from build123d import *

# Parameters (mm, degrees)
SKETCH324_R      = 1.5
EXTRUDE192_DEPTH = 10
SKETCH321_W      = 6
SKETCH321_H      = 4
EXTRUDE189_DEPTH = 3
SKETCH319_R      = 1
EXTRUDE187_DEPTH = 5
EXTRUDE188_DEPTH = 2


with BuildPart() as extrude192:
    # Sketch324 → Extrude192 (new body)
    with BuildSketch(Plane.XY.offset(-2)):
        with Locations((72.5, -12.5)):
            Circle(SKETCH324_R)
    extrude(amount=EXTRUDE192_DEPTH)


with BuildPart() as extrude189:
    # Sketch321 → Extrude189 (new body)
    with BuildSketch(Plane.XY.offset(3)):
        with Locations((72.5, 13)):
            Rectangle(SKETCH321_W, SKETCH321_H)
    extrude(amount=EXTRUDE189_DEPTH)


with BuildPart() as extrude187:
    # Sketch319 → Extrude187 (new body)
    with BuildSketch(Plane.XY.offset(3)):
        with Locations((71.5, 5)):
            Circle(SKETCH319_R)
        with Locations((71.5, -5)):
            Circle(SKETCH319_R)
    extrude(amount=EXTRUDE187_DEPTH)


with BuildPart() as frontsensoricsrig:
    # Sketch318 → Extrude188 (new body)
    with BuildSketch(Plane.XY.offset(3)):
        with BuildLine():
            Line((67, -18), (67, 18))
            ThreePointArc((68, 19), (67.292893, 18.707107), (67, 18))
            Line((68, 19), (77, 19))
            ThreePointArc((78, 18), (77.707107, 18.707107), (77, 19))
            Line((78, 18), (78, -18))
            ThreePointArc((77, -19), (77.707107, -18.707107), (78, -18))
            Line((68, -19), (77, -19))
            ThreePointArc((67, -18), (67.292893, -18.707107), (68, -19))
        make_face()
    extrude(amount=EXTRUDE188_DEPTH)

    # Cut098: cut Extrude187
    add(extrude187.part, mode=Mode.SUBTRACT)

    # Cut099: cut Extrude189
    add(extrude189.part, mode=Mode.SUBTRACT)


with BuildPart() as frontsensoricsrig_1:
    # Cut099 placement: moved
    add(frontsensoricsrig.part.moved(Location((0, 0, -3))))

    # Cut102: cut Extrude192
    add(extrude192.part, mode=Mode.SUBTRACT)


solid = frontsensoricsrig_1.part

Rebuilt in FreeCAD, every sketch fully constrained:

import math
import FreeCAD as App
import Part
import Sketcher

V = App.Vector
Q = App.Units.Quantity


def add_polygon(sketch, points):
    """Adds a closed chain of lines whose ends are joined by coincident constraints."""
    first, n = sketch.GeometryCount, len(points)
    for a, b in zip(points, points[1:] + points[:1]):
        sketch.addGeometry(Part.LineSegment(App.Vector(*a, 0), App.Vector(*b, 0)), False)
    for i in range(n):
        sketch.addConstraint(Sketcher.Constraint("Coincident", first + i, 2, first + (i + 1) % n, 1))

doc = App.newDocument("Part")
body = doc.addObject("PartDesign::Body", "Body")

sketch1 = body.newObject("Sketcher::SketchObject", "Sketch")
sketch1.AttachmentSupport = (doc.getObject("XY_Plane"), [""])
sketch1.MapMode = "FlatFace"
sketch1.AttachmentOffset = App.Placement(V(0, 0, -2), App.Rotation())
sketch1.addGeometry(Part.Circle(V(72.5, -12.5, 0), V(0, 0, 1), 1.5), False)
sketch1.addConstraint(Sketcher.Constraint("Diameter", 0, Q("3 mm")))
sketch1.addConstraint(Sketcher.Constraint("DistanceX", -1, 1, 0, 3, Q("72.5 mm")))
sketch1.addConstraint(Sketcher.Constraint("DistanceY", 0, 3, -1, 1, Q("12.5 mm")))
pad1 = body.newObject("PartDesign::Pad", "Pad")
pad1.Profile = sketch1
pad1.Length = 10
body2 = doc.addObject("PartDesign::Body", "Body001")

sketch2 = body2.newObject("Sketcher::SketchObject", "Sketch001")
sketch2.AttachmentSupport = (doc.getObject("XY_Plane001"), [""])
sketch2.MapMode = "FlatFace"
sketch2.AttachmentOffset = App.Placement(V(0, 0, 3), App.Rotation())
add_polygon(sketch2, [(69.5, 15), (69.5, 11), (75.5, 11), (75.5, 15)])
sketch2.addConstraint(Sketcher.Constraint("Vertical", 0))
sketch2.addConstraint(Sketcher.Constraint("Horizontal", 1))
sketch2.addConstraint(Sketcher.Constraint("Vertical", 2))
sketch2.addConstraint(Sketcher.Constraint("Horizontal", 3))
sketch2.addConstraint(Sketcher.Constraint("DistanceX", 1, 1, 1, 2, Q("6 mm")))
sketch2.addConstraint(Sketcher.Constraint("DistanceY", 0, 2, 0, 1, Q("4 mm")))
sketch2.addConstraint(Sketcher.Constraint("DistanceY", -1, 1, 0, 2, Q("11 mm")))
sketch2.addConstraint(Sketcher.Constraint("DistanceX", -1, 1, 0, 2, Q("69.5 mm")))
pad2 = body2.newObject("PartDesign::Pad", "Pad001")
pad2.Profile = sketch2
pad2.Length = 3
body3 = doc.addObject("PartDesign::Body", "Body002")
body3.AllowCompound = True

sketch3 = body3.newObject("Sketcher::SketchObject", "Sketch002")
sketch3.AttachmentSupport = (doc.getObject("XY_Plane002"), [""])
sketch3.MapMode = "FlatFace"
sketch3.AttachmentOffset = App.Placement(V(0, 0, 3), App.Rotation())
sketch3.addGeometry(Part.Circle(V(71.5, 5, 0), V(0, 0, 1), 1), False)
sketch3.addGeometry(Part.Circle(V(71.5, -5, 0), V(0, 0, 1), 1), False)
sketch3.addConstraint(Sketcher.Constraint("Equal", 0, 1))
sketch3.addConstraint(Sketcher.Constraint("Symmetric", 0, 3, 1, 3, -1))
sketch3.addConstraint(Sketcher.Constraint("Diameter", 0, Q("2 mm")))
sketch3.addConstraint(Sketcher.Constraint("DistanceY", -1, 1, 0, 3, Q("5 mm")))
sketch3.addConstraint(Sketcher.Constraint("DistanceX", -1, 1, 0, 3, Q("71.5 mm")))
pad3 = body3.newObject("PartDesign::Pad", "Pad002")
pad3.Profile = sketch3
pad3.Length = 5
body4 = doc.addObject("PartDesign::Body", "Body003")

sketch4 = body4.newObject("Sketcher::SketchObject", "Sketch003")
sketch4.AttachmentSupport = (doc.getObject("XY_Plane003"), [""])
sketch4.MapMode = "FlatFace"
sketch4.AttachmentOffset = App.Placement(V(0, 0, 3), App.Rotation())
sketch4.addGeometry(Part.LineSegment(V(67, 18, 0), V(67, -18, 0)), False)
sketch4.addGeometry(Part.ArcOfCircle(Part.Circle(V(68, -18, 0), V(0, 0, 1), 1), math.radians(180), math.radians(270)), False)
sketch4.addGeometry(Part.LineSegment(V(68, -19, 0), V(77, -19, 0)), False)
sketch4.addGeometry(Part.ArcOfCircle(Part.Circle(V(77, -18, 0), V(0, 0, 1), 1), math.radians(-90), math.radians(0)), False)
sketch4.addGeometry(Part.LineSegment(V(78, -18, 0), V(78, 18, 0)), False)
sketch4.addGeometry(Part.ArcOfCircle(Part.Circle(V(77, 18, 0), V(0, 0, 1), 1), math.radians(0), math.radians(90)), False)
sketch4.addGeometry(Part.LineSegment(V(77, 19, 0), V(68, 19, 0)), False)
sketch4.addGeometry(Part.ArcOfCircle(Part.Circle(V(68, 18, 0), V(0, 0, 1), 1), math.radians(90), math.radians(180)), False)
sketch4.addConstraint(Sketcher.Constraint("Tangent", 0, 2, 1, 1))
sketch4.addConstraint(Sketcher.Constraint("Tangent", 1, 2, 2, 1))
sketch4.addConstraint(Sketcher.Constraint("Tangent", 2, 2, 3, 1))
sketch4.addConstraint(Sketcher.Constraint("Tangent", 3, 2, 4, 1))
sketch4.addConstraint(Sketcher.Constraint("Tangent", 4, 2, 5, 1))
sketch4.addConstraint(Sketcher.Constraint("Tangent", 5, 2, 6, 1))
sketch4.addConstraint(Sketcher.Constraint("Tangent", 6, 2, 7, 1))
sketch4.addConstraint(Sketcher.Constraint("Tangent", 7, 2, 0, 1))
sketch4.addConstraint(Sketcher.Constraint("Vertical", 0))
sketch4.addConstraint(Sketcher.Constraint("Horizontal", 2))
sketch4.addConstraint(Sketcher.Constraint("Vertical", 4))
sketch4.addConstraint(Sketcher.Constraint("Horizontal", 6))
sketch4.addConstraint(Sketcher.Constraint("Equal", 1, 3))
sketch4.addConstraint(Sketcher.Constraint("Equal", 3, 5))
sketch4.addConstraint(Sketcher.Constraint("Equal", 5, 7))
sketch4.addConstraint(Sketcher.Constraint("Radius", 1, Q("0.999999 mm")))
sketch4.addConstraint(Sketcher.Constraint("DistanceX", 2, 1, 2, 2, Q("9 mm")))
sketch4.addConstraint(Sketcher.Constraint("DistanceY", 0, 2, 0, 1, Q("36 mm")))
sketch4.addConstraint(Sketcher.Constraint("DistanceX", -1, 1, 1, 3, Q("67.999999 mm")))
sketch4.addConstraint(Sketcher.Constraint("DistanceY", 1, 3, -1, 1, Q("18.000001 mm")))
pad4 = body4.newObject("PartDesign::Pad", "Pad003")
pad4.Profile = sketch4
pad4.Length = 2
doc.recompute()

boolean = body4.newObject("PartDesign::Boolean", "Boolean")
boolean.Type = "Cut"
boolean.addObjects([body3])
doc.recompute()

boolean2 = body4.newObject("PartDesign::Boolean", "Boolean001")
boolean2.Type = "Cut"
boolean2.addObjects([body2])
body5 = doc.addObject("PartDesign::Body", "Body004")
doc.recompute()

body4.Placement = App.Placement(V(0, 0, -3), App.Rotation(V(0, 0, 1), 0))
boolean3 = body5.newObject("PartDesign::Boolean", "Boolean002")
boolean3.Type = "Fuse"
boolean3.addObjects([body4])
doc.recompute()

boolean4 = body5.newObject("PartDesign::Boolean", "Boolean003")
boolean4.Type = "Cut"
boolean4.addObjects([body])

doc.recompute()
